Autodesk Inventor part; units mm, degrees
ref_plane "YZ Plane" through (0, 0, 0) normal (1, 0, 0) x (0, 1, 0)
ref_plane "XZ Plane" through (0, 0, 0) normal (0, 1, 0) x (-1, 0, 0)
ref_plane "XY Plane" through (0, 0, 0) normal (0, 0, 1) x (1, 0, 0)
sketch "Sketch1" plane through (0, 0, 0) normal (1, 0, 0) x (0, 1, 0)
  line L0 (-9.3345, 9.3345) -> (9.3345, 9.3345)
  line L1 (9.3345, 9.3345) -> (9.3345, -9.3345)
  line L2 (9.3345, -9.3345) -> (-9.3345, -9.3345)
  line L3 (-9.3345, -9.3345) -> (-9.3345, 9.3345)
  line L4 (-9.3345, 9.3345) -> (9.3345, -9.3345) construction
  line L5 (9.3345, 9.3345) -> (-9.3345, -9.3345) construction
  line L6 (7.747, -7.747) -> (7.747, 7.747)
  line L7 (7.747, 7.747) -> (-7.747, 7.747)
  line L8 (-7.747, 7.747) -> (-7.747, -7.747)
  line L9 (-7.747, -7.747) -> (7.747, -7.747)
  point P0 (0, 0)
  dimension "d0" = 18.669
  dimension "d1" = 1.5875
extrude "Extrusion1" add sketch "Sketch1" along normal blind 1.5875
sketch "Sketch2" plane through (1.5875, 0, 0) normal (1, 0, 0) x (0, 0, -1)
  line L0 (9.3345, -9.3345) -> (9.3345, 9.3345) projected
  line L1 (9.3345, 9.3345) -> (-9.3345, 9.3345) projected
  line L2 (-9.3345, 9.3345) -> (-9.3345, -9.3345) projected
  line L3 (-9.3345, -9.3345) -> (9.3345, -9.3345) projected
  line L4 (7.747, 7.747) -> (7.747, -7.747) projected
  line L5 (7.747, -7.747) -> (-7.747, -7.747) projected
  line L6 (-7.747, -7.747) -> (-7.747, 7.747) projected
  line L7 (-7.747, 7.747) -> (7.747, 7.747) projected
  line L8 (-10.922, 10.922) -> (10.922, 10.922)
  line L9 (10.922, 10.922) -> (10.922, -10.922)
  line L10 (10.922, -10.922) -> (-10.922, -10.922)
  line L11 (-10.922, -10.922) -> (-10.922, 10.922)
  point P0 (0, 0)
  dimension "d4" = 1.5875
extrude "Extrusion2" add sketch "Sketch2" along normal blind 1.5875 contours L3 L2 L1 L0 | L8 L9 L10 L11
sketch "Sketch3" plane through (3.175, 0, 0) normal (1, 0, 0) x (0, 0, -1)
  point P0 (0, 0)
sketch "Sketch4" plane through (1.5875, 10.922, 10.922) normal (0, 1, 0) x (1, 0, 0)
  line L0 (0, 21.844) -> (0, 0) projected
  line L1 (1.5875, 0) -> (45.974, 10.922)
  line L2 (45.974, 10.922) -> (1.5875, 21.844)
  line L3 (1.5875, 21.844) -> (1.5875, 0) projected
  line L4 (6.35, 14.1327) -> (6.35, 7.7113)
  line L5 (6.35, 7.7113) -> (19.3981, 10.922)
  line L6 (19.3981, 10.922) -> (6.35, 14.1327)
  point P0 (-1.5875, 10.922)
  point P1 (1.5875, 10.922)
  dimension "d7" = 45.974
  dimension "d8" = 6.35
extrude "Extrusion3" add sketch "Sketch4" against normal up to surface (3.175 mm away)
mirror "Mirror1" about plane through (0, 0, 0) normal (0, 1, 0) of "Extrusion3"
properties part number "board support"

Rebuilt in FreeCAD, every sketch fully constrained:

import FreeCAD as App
import Part
import Sketcher
Q = App.Units.Quantity


def add_polygon(sketch, points):
    """Adds a closed chain of lines whose ends are joined by coincident constraints."""
    first, n = sketch.GeometryCount, len(points)
    for a, b in zip(points, points[1:] + points[:1]):
        sketch.addGeometry(Part.LineSegment(App.Vector(*a, 0), App.Vector(*b, 0)), False)
    for i in range(n):
        sketch.addConstraint(Sketcher.Constraint("Coincident", first + i, 2, first + (i + 1) % n, 1))

doc = App.newDocument("Part")
body = doc.addObject("PartDesign::Body", "Body")

# Sketch on YZ plane
sketch1 = body.newObject("Sketcher::SketchObject", "Sketch")
sketch1.AttachmentSupport = (doc.getObject("YZ_Plane"), [""])
sketch1.MapMode = "FlatFace"
add_polygon(sketch1, [(9, 9), (-9, 9), (-9, -9), (9, -9)])  # lines 0-3
add_polygon(sketch1, [(8, 8), (8, -8), (-8, -8), (-8, 8)])  # lines 4-7
sketch1.addConstraint([
    Sketcher.Constraint("Horizontal", 0),
    Sketcher.Constraint("Vertical", 1),
    Sketcher.Constraint("Horizontal", 2),
    Sketcher.Constraint("Vertical", 3),
    Sketcher.Constraint("Vertical", 4),
    Sketcher.Constraint("Horizontal", 5),
    Sketcher.Constraint("Vertical", 6),
    Sketcher.Constraint("Horizontal", 7),
    Sketcher.Constraint("Symmetric", 0, 2, 2, 2, -1, 1),
    Sketcher.Constraint("Symmetric", 4, 2, 6, 2, -1, 1),
    Sketcher.Constraint("Equal", 2, 1),
    Sketcher.Constraint("Equal", 7, 4),
    Sketcher.Constraint("DistanceX", 0, 2, 0, 1, Q("0.735 in")),
    Sketcher.Constraint("DistanceX", 4, 2, 2, 2, Q("0.0625 in")),
])
pad1 = body.newObject("PartDesign::Pad", "Pad")
pad1.Profile = sketch1
pad1.Length = Q("0.0625 in")

# Sketch on YZ plane
sketch2 = body.newObject("Sketcher::SketchObject", "Sketch001")
sketch2.AttachmentSupport = (doc.getObject("YZ_Plane"), [""])
sketch2.MapMode = "FlatFace"
sketch2.AttachmentOffset = App.Placement(App.Vector(0, 0, 0.0625 * 25.4), App.Rotation())
add_polygon(sketch2, [(11, -11), (11, 11), (-11, 11), (-11, -11)])  # lines 0-3
add_polygon(sketch2, [(8, 8), (8, -8), (-8, -8), (-8, 8)])  # lines 4-7
sketch2.addConstraint([
    Sketcher.Constraint("Vertical", 0),
    Sketcher.Constraint("Horizontal", 1),
    Sketcher.Constraint("Vertical", 2),
    Sketcher.Constraint("Horizontal", 3),
    Sketcher.Constraint("Vertical", 4),
    Sketcher.Constraint("Horizontal", 5),
    Sketcher.Constraint("Vertical", 6),
    Sketcher.Constraint("Horizontal", 7),
    Sketcher.Constraint("Symmetric", 0, 2, 2, 2, -1, 1),
    Sketcher.Constraint("Symmetric", 4, 2, 6, 2, -1, 1),
    Sketcher.Constraint("Equal", 3, 0),
    Sketcher.Constraint("Equal", 7, 4),
    Sketcher.Constraint("DistanceX", 1, 2, 1, 1, Q("0.86 in")),
    Sketcher.Constraint("DistanceX", 5, 2, 5, 1, Q("0.61 in")),
])
pad2 = body.newObject("PartDesign::Pad", "Pad001")
pad2.Profile = sketch2
pad2.Length = Q("0.0625 in")

# Sketch on XZ plane
sketch3 = body.newObject("Sketcher::SketchObject", "Sketch002")
sketch3.AttachmentSupport = (doc.getObject("XZ_Plane"), [""])
sketch3.MapMode = "FlatFace"
sketch3.AttachmentOffset = App.Placement(App.Vector(0, 0, -0.43 * 25.4), App.Rotation())
add_polygon(sketch3, [(3, -11), (3, 11), (48, 0)])  # lines 0-2
add_polygon(sketch3, [(8, 3), (8, -3), (21, 0)])  # lines 3-5
sketch3.addConstraint([
    Sketcher.Constraint("Vertical", 0),
    Sketcher.Constraint("Vertical", 3),
    Sketcher.Constraint("PointOnObject", 1, 2, -1),
    Sketcher.Constraint("PointOnObject", 4, 2, -1),
    Sketcher.Constraint("Parallel", 2, 4),
    Sketcher.Constraint("Parallel", 1, 5),
    Sketcher.Constraint("Equal", 1, 2),
    Sketcher.Constraint("DistanceY", 0, 1, 0, 2, Q("0.86 in")),
    Sketcher.Constraint("DistanceX", 3, 2, 1, 2, Q("1.56 in")),
    Sketcher.Constraint("DistanceY", 3, 2, 3, 1, Q("0.2528 in")),
    Sketcher.Constraint("DistanceX", -1, 1, 0, 2, Q("0.125 in")),
    Sketcher.Constraint("DistanceX", -1, 1, 3, 2, Q("0.3125 in")),
])
pad3 = body.newObject("PartDesign::Pad", "Pad002")
pad3.Profile = sketch3
pad3.Length = Q("0.125 in")
doc.recompute()

mirrored = body.newObject("PartDesign::Mirrored", "Mirrored")
mirrored.Originals = [pad3]
mirrored.MirrorPlane = (doc.getObject("XZ_Plane"), [""])
body.Tip = mirrored

doc.recompute()
